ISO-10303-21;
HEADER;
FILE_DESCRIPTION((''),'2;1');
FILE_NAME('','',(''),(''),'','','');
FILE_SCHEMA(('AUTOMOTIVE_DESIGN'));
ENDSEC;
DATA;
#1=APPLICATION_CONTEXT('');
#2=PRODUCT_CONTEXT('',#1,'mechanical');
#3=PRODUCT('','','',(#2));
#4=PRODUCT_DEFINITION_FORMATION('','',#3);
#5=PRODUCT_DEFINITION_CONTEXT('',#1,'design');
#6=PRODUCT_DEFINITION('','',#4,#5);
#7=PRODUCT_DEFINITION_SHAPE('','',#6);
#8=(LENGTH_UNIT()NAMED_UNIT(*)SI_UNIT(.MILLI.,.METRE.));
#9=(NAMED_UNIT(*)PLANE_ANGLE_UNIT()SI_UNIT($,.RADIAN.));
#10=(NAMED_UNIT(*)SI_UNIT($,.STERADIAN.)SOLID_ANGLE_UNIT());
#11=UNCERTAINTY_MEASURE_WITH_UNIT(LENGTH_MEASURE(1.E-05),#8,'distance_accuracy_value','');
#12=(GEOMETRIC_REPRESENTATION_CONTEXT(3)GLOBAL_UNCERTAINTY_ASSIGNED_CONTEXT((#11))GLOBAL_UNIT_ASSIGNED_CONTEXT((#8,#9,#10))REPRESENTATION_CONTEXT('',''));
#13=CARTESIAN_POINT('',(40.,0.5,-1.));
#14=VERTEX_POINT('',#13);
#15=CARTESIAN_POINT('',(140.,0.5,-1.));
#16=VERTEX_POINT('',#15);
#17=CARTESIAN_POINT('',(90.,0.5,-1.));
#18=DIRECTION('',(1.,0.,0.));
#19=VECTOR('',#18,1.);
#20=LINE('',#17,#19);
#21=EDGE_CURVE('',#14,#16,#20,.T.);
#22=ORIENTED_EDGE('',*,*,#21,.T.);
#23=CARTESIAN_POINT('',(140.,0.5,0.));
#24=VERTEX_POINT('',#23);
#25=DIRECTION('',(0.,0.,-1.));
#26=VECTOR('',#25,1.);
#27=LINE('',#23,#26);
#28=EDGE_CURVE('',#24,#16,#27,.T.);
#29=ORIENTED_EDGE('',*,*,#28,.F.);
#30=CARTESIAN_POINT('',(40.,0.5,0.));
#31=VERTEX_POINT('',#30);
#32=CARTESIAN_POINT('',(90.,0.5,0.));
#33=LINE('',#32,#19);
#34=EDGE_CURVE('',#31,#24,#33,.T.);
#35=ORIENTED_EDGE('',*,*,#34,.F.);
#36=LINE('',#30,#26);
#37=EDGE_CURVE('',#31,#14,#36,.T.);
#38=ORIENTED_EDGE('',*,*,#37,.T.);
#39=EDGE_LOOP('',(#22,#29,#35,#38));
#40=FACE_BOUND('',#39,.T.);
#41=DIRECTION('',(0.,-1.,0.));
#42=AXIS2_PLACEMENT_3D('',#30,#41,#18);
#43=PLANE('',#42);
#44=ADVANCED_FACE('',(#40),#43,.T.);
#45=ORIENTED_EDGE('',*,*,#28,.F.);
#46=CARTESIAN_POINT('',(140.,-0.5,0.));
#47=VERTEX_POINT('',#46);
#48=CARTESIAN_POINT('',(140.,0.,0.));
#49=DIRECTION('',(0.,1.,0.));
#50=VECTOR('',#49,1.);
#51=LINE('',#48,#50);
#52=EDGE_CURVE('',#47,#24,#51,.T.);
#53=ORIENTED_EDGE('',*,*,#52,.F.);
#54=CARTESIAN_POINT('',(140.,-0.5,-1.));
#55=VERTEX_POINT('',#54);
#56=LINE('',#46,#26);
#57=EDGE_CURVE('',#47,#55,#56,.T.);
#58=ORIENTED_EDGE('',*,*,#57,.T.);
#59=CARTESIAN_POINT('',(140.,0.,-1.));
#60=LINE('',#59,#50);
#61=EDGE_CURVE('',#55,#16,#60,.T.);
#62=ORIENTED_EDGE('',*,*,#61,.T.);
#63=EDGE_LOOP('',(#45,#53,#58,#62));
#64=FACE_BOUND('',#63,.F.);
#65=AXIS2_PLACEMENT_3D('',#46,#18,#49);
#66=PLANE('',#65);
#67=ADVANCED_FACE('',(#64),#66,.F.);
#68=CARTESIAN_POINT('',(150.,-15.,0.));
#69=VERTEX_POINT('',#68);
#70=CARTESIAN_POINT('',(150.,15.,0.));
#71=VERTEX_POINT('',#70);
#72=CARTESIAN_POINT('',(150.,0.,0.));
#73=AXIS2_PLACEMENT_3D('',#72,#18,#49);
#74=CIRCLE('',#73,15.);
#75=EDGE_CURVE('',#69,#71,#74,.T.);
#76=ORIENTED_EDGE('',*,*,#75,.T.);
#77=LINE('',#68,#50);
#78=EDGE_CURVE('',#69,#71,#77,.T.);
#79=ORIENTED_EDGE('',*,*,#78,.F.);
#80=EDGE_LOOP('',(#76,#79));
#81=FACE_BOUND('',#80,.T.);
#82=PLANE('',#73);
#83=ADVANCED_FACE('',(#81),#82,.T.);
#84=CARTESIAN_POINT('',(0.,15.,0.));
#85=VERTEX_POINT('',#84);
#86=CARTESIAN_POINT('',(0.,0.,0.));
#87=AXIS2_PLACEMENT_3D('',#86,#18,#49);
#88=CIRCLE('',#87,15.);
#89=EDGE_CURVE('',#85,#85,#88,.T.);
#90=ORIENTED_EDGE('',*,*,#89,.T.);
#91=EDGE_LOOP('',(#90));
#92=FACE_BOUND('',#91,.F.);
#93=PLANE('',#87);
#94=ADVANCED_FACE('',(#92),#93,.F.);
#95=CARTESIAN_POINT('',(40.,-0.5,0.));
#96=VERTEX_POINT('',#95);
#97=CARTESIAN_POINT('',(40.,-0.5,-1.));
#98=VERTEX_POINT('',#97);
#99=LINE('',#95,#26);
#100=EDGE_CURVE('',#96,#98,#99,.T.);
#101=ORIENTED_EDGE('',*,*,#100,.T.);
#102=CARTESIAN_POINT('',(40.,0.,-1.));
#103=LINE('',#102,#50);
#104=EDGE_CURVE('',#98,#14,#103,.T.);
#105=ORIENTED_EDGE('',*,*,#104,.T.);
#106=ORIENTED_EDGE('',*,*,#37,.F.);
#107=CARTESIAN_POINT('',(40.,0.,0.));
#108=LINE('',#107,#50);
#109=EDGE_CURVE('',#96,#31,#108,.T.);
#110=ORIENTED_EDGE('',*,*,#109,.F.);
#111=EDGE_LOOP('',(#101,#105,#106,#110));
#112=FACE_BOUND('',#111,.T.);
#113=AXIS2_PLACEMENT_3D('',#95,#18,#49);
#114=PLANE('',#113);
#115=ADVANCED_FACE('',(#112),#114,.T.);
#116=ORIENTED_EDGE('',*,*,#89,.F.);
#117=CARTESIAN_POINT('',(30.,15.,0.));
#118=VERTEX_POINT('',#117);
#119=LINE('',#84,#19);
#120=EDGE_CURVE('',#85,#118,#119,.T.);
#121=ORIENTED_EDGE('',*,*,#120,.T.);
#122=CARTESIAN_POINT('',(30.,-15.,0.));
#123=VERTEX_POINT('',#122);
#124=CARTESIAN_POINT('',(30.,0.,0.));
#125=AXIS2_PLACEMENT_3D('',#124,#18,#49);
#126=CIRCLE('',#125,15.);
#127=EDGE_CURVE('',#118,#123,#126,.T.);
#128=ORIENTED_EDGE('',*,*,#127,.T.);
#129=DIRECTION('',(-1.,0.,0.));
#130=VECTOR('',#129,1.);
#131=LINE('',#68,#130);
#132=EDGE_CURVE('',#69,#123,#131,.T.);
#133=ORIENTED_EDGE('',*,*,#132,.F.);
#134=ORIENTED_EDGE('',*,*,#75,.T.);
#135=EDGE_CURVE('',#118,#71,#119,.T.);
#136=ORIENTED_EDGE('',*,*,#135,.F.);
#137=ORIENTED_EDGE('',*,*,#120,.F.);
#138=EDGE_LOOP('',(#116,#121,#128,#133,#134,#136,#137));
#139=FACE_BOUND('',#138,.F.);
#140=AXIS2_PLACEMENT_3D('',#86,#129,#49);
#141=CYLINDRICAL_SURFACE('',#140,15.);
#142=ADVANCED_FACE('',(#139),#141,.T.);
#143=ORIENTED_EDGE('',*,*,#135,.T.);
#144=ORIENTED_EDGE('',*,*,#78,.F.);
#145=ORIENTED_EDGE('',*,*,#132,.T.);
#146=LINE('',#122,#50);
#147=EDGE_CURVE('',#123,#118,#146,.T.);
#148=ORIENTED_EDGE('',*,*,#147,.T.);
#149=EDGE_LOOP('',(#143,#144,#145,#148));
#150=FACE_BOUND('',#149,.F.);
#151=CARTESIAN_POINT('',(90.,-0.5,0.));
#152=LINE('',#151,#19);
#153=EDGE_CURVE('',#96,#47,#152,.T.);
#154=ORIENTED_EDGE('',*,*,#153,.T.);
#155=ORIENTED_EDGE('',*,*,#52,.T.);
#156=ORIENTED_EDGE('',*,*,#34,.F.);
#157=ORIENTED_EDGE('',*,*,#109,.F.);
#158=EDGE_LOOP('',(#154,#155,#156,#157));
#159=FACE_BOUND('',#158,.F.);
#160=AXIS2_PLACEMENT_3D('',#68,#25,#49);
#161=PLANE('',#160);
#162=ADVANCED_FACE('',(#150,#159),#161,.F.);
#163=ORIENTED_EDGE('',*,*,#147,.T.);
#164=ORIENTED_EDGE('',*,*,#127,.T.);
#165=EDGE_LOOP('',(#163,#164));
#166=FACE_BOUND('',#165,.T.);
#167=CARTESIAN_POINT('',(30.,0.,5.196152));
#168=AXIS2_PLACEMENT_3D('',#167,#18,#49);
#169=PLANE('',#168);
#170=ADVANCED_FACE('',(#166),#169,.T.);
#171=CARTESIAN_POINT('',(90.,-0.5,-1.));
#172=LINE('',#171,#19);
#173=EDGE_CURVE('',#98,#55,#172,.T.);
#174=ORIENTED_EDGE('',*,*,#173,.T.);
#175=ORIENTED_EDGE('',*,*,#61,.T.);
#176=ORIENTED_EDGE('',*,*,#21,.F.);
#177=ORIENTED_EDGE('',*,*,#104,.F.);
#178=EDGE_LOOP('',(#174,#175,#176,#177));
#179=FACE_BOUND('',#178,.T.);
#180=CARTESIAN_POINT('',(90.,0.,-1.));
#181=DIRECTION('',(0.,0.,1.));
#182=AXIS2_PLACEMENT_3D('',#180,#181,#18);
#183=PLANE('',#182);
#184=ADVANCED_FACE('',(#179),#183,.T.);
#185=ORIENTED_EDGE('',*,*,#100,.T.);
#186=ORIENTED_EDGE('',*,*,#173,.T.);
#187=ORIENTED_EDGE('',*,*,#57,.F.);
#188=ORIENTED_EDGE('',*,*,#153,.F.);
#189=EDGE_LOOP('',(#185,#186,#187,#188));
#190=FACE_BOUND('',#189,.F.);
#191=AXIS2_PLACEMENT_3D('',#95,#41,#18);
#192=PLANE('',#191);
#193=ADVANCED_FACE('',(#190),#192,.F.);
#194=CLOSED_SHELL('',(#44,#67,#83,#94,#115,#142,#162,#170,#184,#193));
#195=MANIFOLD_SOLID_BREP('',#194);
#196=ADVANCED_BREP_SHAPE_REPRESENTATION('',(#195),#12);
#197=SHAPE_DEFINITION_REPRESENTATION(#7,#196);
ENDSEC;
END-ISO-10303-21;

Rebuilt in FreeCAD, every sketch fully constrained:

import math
import FreeCAD as App
import Part
import Sketcher

V = App.Vector
Q = App.Units.Quantity

doc = App.newDocument("Part")
params = doc.addObject("Spreadsheet::Sheet", "Params")
for row, (alias, value) in enumerate([
    ("sketch1_diameter", "30 mm"),
    ("pad1_length", "150 mm"),
    ("sketch2_radius", "15 mm"),
    ("pocket1_length", "120 mm"),
    ("sketch3_width", "100 mm"),
    ("sketch3_height", "1 mm"),
    ("pocket2_length", "1 mm"),
], start=1):
    params.set(f"A{row}", alias)
    params.set(f"B{row}", "=" + value)
    params.setAlias(f"B{row}", alias)

body = doc.addObject("PartDesign::Body", "Body")

# Sketch on YZ plane
sketch1 = doc.addObject("Sketcher::SketchObject", "Sketch")
body.addObject(sketch1)
sketch1.AttachmentSupport = (doc.YZ_Plane, [""])
sketch1.MapMode = "FlatFace"
sketch1.addGeometry(Part.Circle(V(0, 0, 0), V(0, 0, 1), 15), False)
sketch1.addConstraint([
    Sketcher.Constraint("Coincident", 0, 3, -1, 1),
    Sketcher.Constraint("Diameter", 0, Q("30 mm")),
])
sketch1.setExpression("Constraints[1]", "Params.sketch1_diameter")
pad1 = doc.addObject("PartDesign::Pad", "Pad")
body.addObject(pad1)
pad1.Profile = sketch1
pad1.setExpression("Length", "Params.pad1_length")

# Sketch on YZ plane
sketch2 = doc.addObject("Sketcher::SketchObject", "Sketch001")
body.addObject(sketch2)
sketch2.AttachmentSupport = (doc.YZ_Plane, [""])
sketch2.MapMode = "FlatFace"
sketch2.AttachmentOffset = App.Placement(V(0, 0, 150), App.Rotation())
sketch2.addGeometry([
    Part.ArcOfCircle(Part.Circle(V(0, 0, 0), V(0, 0, 1), 15), math.radians(0), math.radians(180)),
    Part.LineSegment(V(-15, 0, 0), V(15, 0, 0)),
], False)
sketch2.addConstraint([
    Sketcher.Constraint("Coincident", 0, 1, 1, 2),
    Sketcher.Constraint("Coincident", 1, 1, 0, 2),
    Sketcher.Constraint("Horizontal", 1),
    Sketcher.Constraint("Coincident", 0, 3, -1, 1),
    Sketcher.Constraint("PointOnObject", 0, 1, -1),
    Sketcher.Constraint("Radius", 0, Q("15 mm")),
])
sketch2.setExpression("Constraints[5]", "Params.sketch2_radius")
pocket1 = doc.addObject("PartDesign::Pocket", "Pocket")
body.addObject(pocket1)
pocket1.Profile = sketch2
pocket1.setExpression("Length", "Params.pocket1_length")

# Sketch on XY plane
sketch3 = doc.addObject("Sketcher::SketchObject", "Sketch002")
body.addObject(sketch3)
sketch3.AttachmentSupport = (doc.XY_Plane, [""])
sketch3.MapMode = "FlatFace"
sketch3.addGeometry([
    Part.LineSegment(V(40, 0.5, 0), V(40, -0.5, 0)),
    Part.LineSegment(V(40, -0.5, 0), V(140, -0.5, 0)),
    Part.LineSegment(V(140, -0.5, 0), V(140, 0.5, 0)),
    Part.LineSegment(V(140, 0.5, 0), V(40, 0.5, 0)),
], False)
sketch3.addConstraint([
    Sketcher.Constraint("Coincident", 0, 2, 1, 1),
    Sketcher.Constraint("Coincident", 1, 2, 2, 1),
    Sketcher.Constraint("Coincident", 2, 2, 3, 1),
    Sketcher.Constraint("Coincident", 3, 2, 0, 1),
    Sketcher.Constraint("Vertical", 0),
    Sketcher.Constraint("Horizontal", 1),
    Sketcher.Constraint("Vertical", 2),
    Sketcher.Constraint("Horizontal", 3),
    Sketcher.Constraint("DistanceX", 1, 1, 1, 2, Q("100 mm")),
    Sketcher.Constraint("DistanceY", 0, 2, 0, 1, Q("1 mm")),
    Sketcher.Constraint("DistanceX", -1, 1, 0, 2, Q("40 mm")),
    Sketcher.Constraint("DistanceY", 0, 2, -1, 1, Q("0.5 mm")),
])
sketch3.setExpression("Constraints[8]", "Params.sketch3_width")
sketch3.setExpression("Constraints[9]", "Params.sketch3_height")
pocket2 = doc.addObject("PartDesign::Pocket", "Pocket001")
body.addObject(pocket2)
pocket2.Profile = sketch3
pocket2.setExpression("Length", "Params.pocket2_length")

doc.recompute()
